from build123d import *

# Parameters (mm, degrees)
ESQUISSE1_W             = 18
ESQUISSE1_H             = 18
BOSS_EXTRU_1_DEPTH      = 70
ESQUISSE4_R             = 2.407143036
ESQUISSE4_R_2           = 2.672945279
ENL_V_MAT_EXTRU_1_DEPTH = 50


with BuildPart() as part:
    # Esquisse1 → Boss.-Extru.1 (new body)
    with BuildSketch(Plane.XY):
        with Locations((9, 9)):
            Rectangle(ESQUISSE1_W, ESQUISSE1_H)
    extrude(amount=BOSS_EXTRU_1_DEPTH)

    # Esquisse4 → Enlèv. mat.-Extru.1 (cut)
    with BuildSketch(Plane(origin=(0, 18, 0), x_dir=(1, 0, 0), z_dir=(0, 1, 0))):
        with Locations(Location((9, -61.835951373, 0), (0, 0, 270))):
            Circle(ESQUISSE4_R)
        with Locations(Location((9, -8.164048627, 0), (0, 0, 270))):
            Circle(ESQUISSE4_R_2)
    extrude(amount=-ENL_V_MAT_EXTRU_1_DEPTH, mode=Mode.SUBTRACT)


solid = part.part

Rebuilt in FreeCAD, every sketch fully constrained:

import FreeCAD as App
import Part
import Sketcher
Q = App.Units.Quantity


def add_polygon(sketch, points):
    """Adds a closed chain of lines whose ends are joined by coincident constraints."""
    first, n = sketch.GeometryCount, len(points)
    for a, b in zip(points, points[1:] + points[:1]):
        sketch.addGeometry(Part.LineSegment(App.Vector(*a, 0), App.Vector(*b, 0)), False)
    for i in range(n):
        sketch.addConstraint(Sketcher.Constraint("Coincident", first + i, 2, first + (i + 1) % n, 1))

doc = App.newDocument("Part")
body = doc.addObject("PartDesign::Body", "Body")

# Sketch on XY plane
sketch1 = body.newObject("Sketcher::SketchObject", "Sketch")
sketch1.AttachmentSupport = (doc.getObject("XY_Plane"), [""])
sketch1.MapMode = "FlatFace"
add_polygon(sketch1, [(0, 18), (0, 0), (18, 0), (18, 18)])  # lines 0-3
sketch1.addConstraint([
    Sketcher.Constraint("Vertical", 0),
    Sketcher.Constraint("Horizontal", 1),
    Sketcher.Constraint("Vertical", 2),
    Sketcher.Constraint("Horizontal", 3),
    Sketcher.Constraint("Coincident", 0, 2, -1, 1),
    Sketcher.Constraint("Equal", 3, 0),
    Sketcher.Constraint("DistanceX", 1, 1, 1, 2, Q("18 mm")),
])
pad1 = body.newObject("PartDesign::Pad", "Pad")
pad1.Profile = sketch1
pad1.Length = 70

# Sketch on XZ plane
sketch2 = body.newObject("Sketcher::SketchObject", "Sketch001")
sketch2.AttachmentSupport = (doc.getObject("XZ_Plane"), [""])
sketch2.MapMode = "FlatFace"
sketch2.AttachmentOffset = App.Placement(App.Vector(0, 0, -18), App.Rotation())
sketch2.addGeometry([
    Part.Circle(App.Vector(9, 61.8, 0), App.Vector(0, 0, 1), 2.4),
    Part.Circle(App.Vector(9, 8.2, 0), App.Vector(0, 0, 1), 2.7),
], False)
sketch2.addConstraint([
    Sketcher.Constraint("Vertical", 0, 3, 1, 3),
    Sketcher.Constraint("DistanceX", -1, 1, 0, 3, Q("9 mm")),
    Sketcher.Constraint("Diameter", 1, Q("5.345891 mm")),
    Sketcher.Constraint("Diameter", 0, Q("4.814286 mm")),
    Sketcher.Constraint("DistanceY", -1, 1, 0, 3, Q("61.835951 mm")),
    Sketcher.Constraint("DistanceY", -1, 1, 1, 3, Q("8.164049 mm")),
])
pocket1 = body.newObject("PartDesign::Pocket", "Pocket")
pocket1.Profile = sketch2
pocket1.Length = 50
pocket1.Reversed = True

doc.recompute()
